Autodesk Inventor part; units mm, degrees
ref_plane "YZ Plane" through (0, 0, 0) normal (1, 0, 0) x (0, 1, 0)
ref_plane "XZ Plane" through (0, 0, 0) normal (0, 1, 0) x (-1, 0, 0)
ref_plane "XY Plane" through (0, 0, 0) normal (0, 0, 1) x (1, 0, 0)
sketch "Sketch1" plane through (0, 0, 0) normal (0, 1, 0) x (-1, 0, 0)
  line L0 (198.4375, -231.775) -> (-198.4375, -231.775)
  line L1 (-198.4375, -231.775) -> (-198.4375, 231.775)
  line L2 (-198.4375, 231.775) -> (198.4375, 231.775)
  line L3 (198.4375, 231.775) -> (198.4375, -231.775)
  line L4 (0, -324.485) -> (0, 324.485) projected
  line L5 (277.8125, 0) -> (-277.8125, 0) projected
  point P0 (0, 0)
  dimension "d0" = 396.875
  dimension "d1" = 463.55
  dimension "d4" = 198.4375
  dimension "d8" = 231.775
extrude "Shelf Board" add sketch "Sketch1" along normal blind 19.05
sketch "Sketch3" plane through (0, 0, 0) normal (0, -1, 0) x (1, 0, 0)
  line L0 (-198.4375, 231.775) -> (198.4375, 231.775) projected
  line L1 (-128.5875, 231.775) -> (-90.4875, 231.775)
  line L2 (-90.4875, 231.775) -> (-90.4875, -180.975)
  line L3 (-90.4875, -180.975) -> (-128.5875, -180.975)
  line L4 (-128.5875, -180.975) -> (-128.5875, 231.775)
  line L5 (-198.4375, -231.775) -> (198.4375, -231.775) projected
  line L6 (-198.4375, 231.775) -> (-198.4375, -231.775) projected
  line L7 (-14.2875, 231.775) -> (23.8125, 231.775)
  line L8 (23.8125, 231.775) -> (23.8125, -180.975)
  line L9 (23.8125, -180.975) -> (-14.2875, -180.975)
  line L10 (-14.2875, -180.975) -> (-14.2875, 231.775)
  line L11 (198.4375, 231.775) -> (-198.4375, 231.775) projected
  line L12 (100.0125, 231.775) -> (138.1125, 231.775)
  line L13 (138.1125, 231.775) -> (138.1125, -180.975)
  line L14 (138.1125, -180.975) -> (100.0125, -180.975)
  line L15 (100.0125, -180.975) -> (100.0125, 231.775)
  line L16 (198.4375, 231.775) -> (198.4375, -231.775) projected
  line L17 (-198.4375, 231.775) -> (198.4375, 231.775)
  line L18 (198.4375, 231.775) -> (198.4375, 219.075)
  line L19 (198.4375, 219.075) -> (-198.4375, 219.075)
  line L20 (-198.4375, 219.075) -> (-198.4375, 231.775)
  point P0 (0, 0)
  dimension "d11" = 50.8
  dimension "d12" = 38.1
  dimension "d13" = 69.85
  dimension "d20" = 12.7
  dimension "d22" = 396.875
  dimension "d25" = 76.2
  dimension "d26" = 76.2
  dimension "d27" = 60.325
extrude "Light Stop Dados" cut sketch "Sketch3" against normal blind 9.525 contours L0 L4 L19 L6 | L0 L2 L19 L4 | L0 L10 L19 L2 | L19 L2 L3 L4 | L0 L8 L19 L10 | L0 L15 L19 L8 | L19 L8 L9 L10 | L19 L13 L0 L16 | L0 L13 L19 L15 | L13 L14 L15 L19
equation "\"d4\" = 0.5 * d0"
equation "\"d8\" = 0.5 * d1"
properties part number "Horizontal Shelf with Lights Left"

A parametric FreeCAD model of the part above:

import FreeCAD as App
import Part
import Sketcher

V = App.Vector
Q = App.Units.Quantity


def add_polygon(sketch, points):
    """Adds a closed chain of lines whose ends are joined by coincident constraints."""
    first, n = sketch.GeometryCount, len(points)
    for a, b in zip(points, points[1:] + points[:1]):
        sketch.addGeometry(Part.LineSegment(App.Vector(*a, 0), App.Vector(*b, 0)), False)
    for i in range(n):
        sketch.addConstraint(Sketcher.Constraint("Coincident", first + i, 2, first + (i + 1) % n, 1))

doc = App.newDocument("Part")
body = doc.addObject("PartDesign::Body", "Body")

sketch1 = doc.addObject("Sketcher::SketchObject", "Sketch")
body.addObject(sketch1)
sketch1.AttachmentSupport = (doc.XZ_Plane, [""])
sketch1.MapMode = "FlatFace"
add_polygon(sketch1, [(-198, -232), (-198, 232), (198, 232), (198, -232)])
sketch1.addConstraint([
    Sketcher.Constraint("Vertical", 0),
    Sketcher.Constraint("Horizontal", 1),
    Sketcher.Constraint("Vertical", 2),
    Sketcher.Constraint("Horizontal", 3),
    Sketcher.Constraint("Symmetric", 0, 2, 2, 2, -1, 1),
    Sketcher.Constraint("DistanceY", 0, 1, 0, 2, Q("18.25 in")),
    Sketcher.Constraint("DistanceX", 1, 1, 1, 2, Q("15.625 in")),
])
pad1 = doc.addObject("PartDesign::Pad", "Pad")
body.addObject(pad1)
pad1.Profile = sketch1
pad1.Length = Q("0.75 in")
pad1.Reversed = True

sketch2 = doc.addObject("Sketcher::SketchObject", "Sketch001")
body.addObject(sketch2)
sketch2.AttachmentSupport = (doc.XZ_Plane, [""])
sketch2.MapMode = "FlatFace"
add_polygon(sketch2, [(-198, 232), (-198, 219), (-129, 219), (-129, -181), (-90, -181), (-90, 219), (-14, 219), (-14, -181), (24, -181), (24, 219), (100, 219), (100, -181), (138, -181), (138, 219), (198, 219), (198, 232)])
sketch2.addConstraint([
    Sketcher.Constraint("Vertical", 0),
    Sketcher.Constraint("Horizontal", 1),
    Sketcher.Constraint("Vertical", 2),
    Sketcher.Constraint("Horizontal", 3),
    Sketcher.Constraint("Vertical", 4),
    Sketcher.Constraint("Horizontal", 5),
    Sketcher.Constraint("Vertical", 6),
    Sketcher.Constraint("Horizontal", 7),
    Sketcher.Constraint("Vertical", 8),
    Sketcher.Constraint("Horizontal", 9),
    Sketcher.Constraint("Vertical", 10),
    Sketcher.Constraint("Horizontal", 11),
    Sketcher.Constraint("Vertical", 12),
    Sketcher.Constraint("Horizontal", 13),
    Sketcher.Constraint("Vertical", 14),
    Sketcher.Constraint("Horizontal", 15),
    Sketcher.Constraint("Symmetric", 0, 2, 13, 2, -2),
    Sketcher.Constraint("Horizontal", 1, 2, 4, 2),
    Sketcher.Constraint("Horizontal", 3, 2, 6, 2),
    Sketcher.Constraint("Horizontal", 5, 2, 8, 2),
    Sketcher.Constraint("Horizontal", 7, 2, 10, 2),
    Sketcher.Constraint("Equal", 3, 7),
    Sketcher.Constraint("Equal", 5, 9),
    Sketcher.Constraint("Equal", 7, 11),
    Sketcher.Constraint("DistanceX", 5, 1, 5, 2, Q("3 in")),
    Sketcher.Constraint("DistanceX", 3, 1, 3, 2, Q("1.5 in")),
    Sketcher.Constraint("DistanceY", 0, 2, 0, 1, Q("0.5 in")),
    Sketcher.Constraint("DistanceX", 1, 1, 1, 2, Q("2.75 in")),
    Sketcher.Constraint("DistanceX", 13, 1, 13, 2, Q("2.375 in")),
    Sketcher.Constraint("DistanceY", 2, 2, 2, 1, Q("15.75 in")),
    Sketcher.Constraint("DistanceY", -1, 1, 0, 2, Q("8.625 in")),
])
pocket1 = doc.addObject("PartDesign::Pocket", "Pocket")
body.addObject(pocket1)
pocket1.Profile = sketch2
pocket1.Length = Q("0.375 in")

doc.recompute()
